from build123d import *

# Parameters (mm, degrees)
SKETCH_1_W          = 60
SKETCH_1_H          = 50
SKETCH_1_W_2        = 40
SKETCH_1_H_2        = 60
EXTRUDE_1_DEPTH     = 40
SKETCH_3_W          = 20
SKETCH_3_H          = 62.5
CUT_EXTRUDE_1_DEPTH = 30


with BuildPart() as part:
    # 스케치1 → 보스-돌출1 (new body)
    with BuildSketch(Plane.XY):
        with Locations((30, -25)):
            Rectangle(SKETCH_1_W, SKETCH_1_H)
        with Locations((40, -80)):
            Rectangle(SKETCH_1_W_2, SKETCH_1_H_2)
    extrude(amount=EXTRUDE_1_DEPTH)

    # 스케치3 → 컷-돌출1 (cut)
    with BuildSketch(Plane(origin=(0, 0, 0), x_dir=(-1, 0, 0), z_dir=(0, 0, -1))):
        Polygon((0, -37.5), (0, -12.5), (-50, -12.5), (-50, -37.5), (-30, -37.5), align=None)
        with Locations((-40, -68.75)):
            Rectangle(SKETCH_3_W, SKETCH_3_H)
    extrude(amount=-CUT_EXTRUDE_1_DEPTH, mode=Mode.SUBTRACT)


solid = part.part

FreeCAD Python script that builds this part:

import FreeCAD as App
import Part
import Sketcher

V = App.Vector
Q = App.Units.Quantity


def add_polygon(sketch, points):
    """Adds a closed chain of lines whose ends are joined by coincident constraints."""
    first, n = sketch.GeometryCount, len(points)
    for a, b in zip(points, points[1:] + points[:1]):
        sketch.addGeometry(Part.LineSegment(App.Vector(*a, 0), App.Vector(*b, 0)), False)
    for i in range(n):
        sketch.addConstraint(Sketcher.Constraint("Coincident", first + i, 2, first + (i + 1) % n, 1))

doc = App.newDocument("Part")
body = doc.addObject("PartDesign::Body", "Body")

sketch1 = body.newObject("Sketcher::SketchObject", "Sketch")
sketch1.AttachmentSupport = (doc.getObject("XY_Plane"), [""])
sketch1.MapMode = "FlatFace"
add_polygon(sketch1, [(0, 0), (0, -50), (20, -50), (20, -110), (60, -110), (60, 0)])
sketch1.addConstraint([
    Sketcher.Constraint("Vertical", 0),
    Sketcher.Constraint("Horizontal", 1),
    Sketcher.Constraint("Vertical", 2),
    Sketcher.Constraint("Horizontal", 3),
    Sketcher.Constraint("Vertical", 4),
    Sketcher.Constraint("Horizontal", 5),
    Sketcher.Constraint("Coincident", 5, 2, -1, 1),
    Sketcher.Constraint("Equal", 5, 2),
    Sketcher.Constraint("DistanceX", 1, 1, 1, 2, Q("20 mm")),
    Sketcher.Constraint("DistanceX", 3, 1, 3, 2, Q("40 mm")),
    Sketcher.Constraint("DistanceY", 0, 2, 0, 1, Q("50 mm")),
])
pad1 = body.newObject("PartDesign::Pad", "Pad")
pad1.Profile = sketch1
pad1.Length = 40

sketch2 = body.newObject("Sketcher::SketchObject", "Sketch001")
sketch2.AttachmentSupport = (doc.getObject("XY_Plane"), [""])
sketch2.MapMode = "FlatFace"
add_polygon(sketch2, [(0, -38), (0, -12), (50, -12), (50, -100), (30, -100), (30, -38)])
sketch2.addConstraint([
    Sketcher.Constraint("Vertical", 0),
    Sketcher.Constraint("Horizontal", 1),
    Sketcher.Constraint("Vertical", 2),
    Sketcher.Constraint("Horizontal", 3),
    Sketcher.Constraint("Vertical", 4),
    Sketcher.Constraint("Horizontal", 5),
    Sketcher.Constraint("PointOnObject", 0, 2, -2),
    Sketcher.Constraint("DistanceX", 1, 1, 1, 2, Q("50 mm")),
    Sketcher.Constraint("DistanceX", 3, 2, 3, 1, Q("20 mm")),
    Sketcher.Constraint("DistanceY", 0, 1, 0, 2, Q("25 mm")),
    Sketcher.Constraint("DistanceY", 2, 2, 2, 1, Q("87.5 mm")),
    Sketcher.Constraint("DistanceY", 2, 2, -1, 1, Q("100 mm")),
])
pocket1 = body.newObject("PartDesign::Pocket", "Pocket")
pocket1.Profile = sketch2
pocket1.Length = 30
pocket1.Reversed = True

doc.recompute()
